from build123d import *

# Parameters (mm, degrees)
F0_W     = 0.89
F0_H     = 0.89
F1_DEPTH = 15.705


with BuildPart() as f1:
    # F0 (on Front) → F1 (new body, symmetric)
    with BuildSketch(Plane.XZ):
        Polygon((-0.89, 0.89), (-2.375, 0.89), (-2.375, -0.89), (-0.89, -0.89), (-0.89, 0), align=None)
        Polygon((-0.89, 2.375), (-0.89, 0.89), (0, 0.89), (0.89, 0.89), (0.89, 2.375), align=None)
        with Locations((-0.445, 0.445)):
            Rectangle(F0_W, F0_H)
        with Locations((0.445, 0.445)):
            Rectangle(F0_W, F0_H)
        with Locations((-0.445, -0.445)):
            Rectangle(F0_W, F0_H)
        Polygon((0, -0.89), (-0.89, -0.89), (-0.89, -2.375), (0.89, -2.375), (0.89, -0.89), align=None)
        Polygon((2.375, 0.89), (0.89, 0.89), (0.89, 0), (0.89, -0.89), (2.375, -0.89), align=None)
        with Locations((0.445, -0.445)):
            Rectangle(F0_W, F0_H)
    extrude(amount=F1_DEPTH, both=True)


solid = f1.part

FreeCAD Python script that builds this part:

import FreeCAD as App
import Part
import Sketcher

V = App.Vector


def add_polygon(sketch, points):
    """Adds a closed chain of lines whose ends are joined by coincident constraints."""
    first, n = sketch.GeometryCount, len(points)
    for a, b in zip(points, points[1:] + points[:1]):
        sketch.addGeometry(Part.LineSegment(App.Vector(*a, 0), App.Vector(*b, 0)), False)
    for i in range(n):
        sketch.addConstraint(Sketcher.Constraint("Coincident", first + i, 2, first + (i + 1) % n, 1))

doc = App.newDocument("Part")
body = doc.addObject("PartDesign::Body", "Body")

sketch1 = body.newObject("Sketcher::SketchObject", "Sketch")
sketch1.AttachmentSupport = (doc.getObject("XZ_Plane"), [""])
sketch1.MapMode = "FlatFace"
add_polygon(sketch1, [(0.89, -2.375), (0.89, -0.89), (2.375, -0.89), (2.375, 0.89), (0.89, 0.89), (0.89, 2.375), (-0.89, 2.375), (-0.89, 0.89), (-2.375, 0.89), (-2.375, -0.89), (-0.89, -0.89), (-0.89, -2.375)])
sketch1.addConstraint([
    Sketcher.Constraint("Vertical", 0),
    Sketcher.Constraint("Horizontal", 1),
    Sketcher.Constraint("Vertical", 2),
    Sketcher.Constraint("Horizontal", 3),
    Sketcher.Constraint("Vertical", 4),
    Sketcher.Constraint("Horizontal", 5),
    Sketcher.Constraint("Vertical", 6),
    Sketcher.Constraint("Horizontal", 7),
    Sketcher.Constraint("Vertical", 8),
    Sketcher.Constraint("Horizontal", 9),
    Sketcher.Constraint("Vertical", 10),
    Sketcher.Constraint("Horizontal", 11),
    Sketcher.Constraint("Symmetric", 0, 2, 6, 2, -1, 1),
    Sketcher.Constraint("Symmetric", 2, 2, 8, 2, -1, 1),
    Sketcher.Constraint("Symmetric", 4, 2, 10, 2, -1, 1),
    Sketcher.Constraint("Symmetric", 3, 2, 6, 2, -2),
    Sketcher.Constraint("Equal", 9, 0),
    Sketcher.Constraint("Equal", 11, 2),
    Sketcher.Constraint("DistanceX", 5, 2, 5, 1, 1.78),
    Sketcher.Constraint("DistanceX", 1, 1, 1, 2, 1.485),
])
pad1 = body.newObject("PartDesign::Pad", "Pad")
pad1.Profile = sketch1
pad1.Length = 31.41
pad1.Midplane = True

doc.recompute()
